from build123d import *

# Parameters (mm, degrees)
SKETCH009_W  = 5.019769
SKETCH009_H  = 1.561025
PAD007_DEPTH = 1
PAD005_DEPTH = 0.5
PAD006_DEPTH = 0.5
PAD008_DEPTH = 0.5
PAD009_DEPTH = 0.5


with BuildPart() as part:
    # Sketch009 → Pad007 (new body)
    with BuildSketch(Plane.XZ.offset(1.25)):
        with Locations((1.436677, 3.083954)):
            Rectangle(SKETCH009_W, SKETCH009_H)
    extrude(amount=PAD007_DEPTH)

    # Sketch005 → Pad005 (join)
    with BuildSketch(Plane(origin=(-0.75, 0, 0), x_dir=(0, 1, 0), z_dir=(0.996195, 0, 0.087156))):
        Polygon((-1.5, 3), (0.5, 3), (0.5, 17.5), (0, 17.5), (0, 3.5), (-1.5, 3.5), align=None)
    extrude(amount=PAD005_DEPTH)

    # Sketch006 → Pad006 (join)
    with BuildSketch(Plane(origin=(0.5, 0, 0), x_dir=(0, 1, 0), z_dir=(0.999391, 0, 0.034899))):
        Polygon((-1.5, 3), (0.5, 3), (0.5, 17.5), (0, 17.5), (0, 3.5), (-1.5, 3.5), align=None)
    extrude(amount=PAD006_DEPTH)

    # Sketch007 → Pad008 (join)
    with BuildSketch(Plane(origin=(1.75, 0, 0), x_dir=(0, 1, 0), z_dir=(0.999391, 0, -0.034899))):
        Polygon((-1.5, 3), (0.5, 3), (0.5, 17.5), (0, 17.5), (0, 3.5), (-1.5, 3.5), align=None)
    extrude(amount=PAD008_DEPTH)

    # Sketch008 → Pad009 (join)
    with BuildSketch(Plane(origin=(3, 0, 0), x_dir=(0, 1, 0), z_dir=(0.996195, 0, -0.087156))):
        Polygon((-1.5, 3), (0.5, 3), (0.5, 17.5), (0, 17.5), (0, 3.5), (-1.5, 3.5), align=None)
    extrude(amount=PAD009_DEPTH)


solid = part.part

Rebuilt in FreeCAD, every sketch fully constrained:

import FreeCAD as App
import Part
import Sketcher

V = App.Vector


def add_polygon(sketch, points):
    """Adds a closed chain of lines whose ends are joined by coincident constraints."""
    first, n = sketch.GeometryCount, len(points)
    for a, b in zip(points, points[1:] + points[:1]):
        sketch.addGeometry(Part.LineSegment(App.Vector(*a, 0), App.Vector(*b, 0)), False)
    for i in range(n):
        sketch.addConstraint(Sketcher.Constraint("Coincident", first + i, 2, first + (i + 1) % n, 1))

doc = App.newDocument("Part")
body = doc.addObject("PartDesign::Body", "Body")

# Sketch on XZ plane
sketch1 = body.newObject("Sketcher::SketchObject", "Sketch")
sketch1.AttachmentSupport = (doc.getObject("XZ_Plane"), [""])
sketch1.MapMode = "FlatFace"
sketch1.AttachmentOffset = App.Placement(V(0, 0, 1.25), App.Rotation())
add_polygon(sketch1, [(-1.1, 3.9), (-1.1, 2.3), (3.9, 2.3), (3.9, 3.9)])  # lines 0-3
sketch1.addConstraint([
    Sketcher.Constraint("Vertical", 0),
    Sketcher.Constraint("Horizontal", 1),
    Sketcher.Constraint("Vertical", 2),
    Sketcher.Constraint("Horizontal", 3),
    Sketcher.Constraint("DistanceX", 1, 1, 1, 2, 5.019769),
    Sketcher.Constraint("DistanceY", 0, 2, 0, 1, 1.561025),
    Sketcher.Constraint("DistanceY", -1, 1, 0, 2, 2.303441),
    Sketcher.Constraint("DistanceX", -1, 1, 1, 2, 3.946562),
])
pad1 = body.newObject("PartDesign::Pad", "Pad")
pad1.Profile = sketch1
pad1.Length = 1

# Sketch on an angled plane
sketch2 = body.newObject("Sketcher::SketchObject", "Sketch001")
sketch2.Placement = App.Placement(V(-0.75, 0, 0), App.Rotation(V(0, 1, 0), V(-0.087155972, 0, 0.996194678), V(0.996194678, 0, 0.087155972), "ZXY"))
add_polygon(sketch2, [(-1.5, 3), (0.5, 3), (0.5, 17.5), (0, 17.5), (0, 3.5), (-1.5, 3.5)])  # lines 0-5
sketch2.addConstraint([
    Sketcher.Constraint("Horizontal", 0),
    Sketcher.Constraint("Vertical", 1),
    Sketcher.Constraint("Horizontal", 2),
    Sketcher.Constraint("Vertical", 3),
    Sketcher.Constraint("Horizontal", 4),
    Sketcher.Constraint("Vertical", 5),
    Sketcher.Constraint("PointOnObject", 2, 2, -2),
    Sketcher.Constraint("Equal", 2, 5),
    Sketcher.Constraint("DistanceX", 0, 1, 0, 2, 2.0),
    Sketcher.Constraint("DistanceY", 3, 2, 3, 1, 14.0),
    Sketcher.Constraint("DistanceX", 2, 2, 2, 1, 0.5),
    Sketcher.Constraint("DistanceY", -1, 1, 0, 2, 3.0),
])
pad2 = body.newObject("PartDesign::Pad", "Pad001")
pad2.Profile = sketch2
pad2.Length = 0.5

# Sketch on an angled plane
sketch3 = body.newObject("Sketcher::SketchObject", "Sketch002")
sketch3.Placement = App.Placement(V(0.5, 0, 0), App.Rotation(V(0, 1, 0), V(-0.034898995, 0, 0.999390845), V(0.999390845, 0, 0.034898995), "ZXY"))
add_polygon(sketch3, [(-1.5, 3), (0.5, 3), (0.5, 17.5), (0, 17.5), (0, 3.5), (-1.5, 3.5)])  # lines 0-5
sketch3.addConstraint([
    Sketcher.Constraint("Horizontal", 0),
    Sketcher.Constraint("Vertical", 1),
    Sketcher.Constraint("Horizontal", 2),
    Sketcher.Constraint("Vertical", 3),
    Sketcher.Constraint("Horizontal", 4),
    Sketcher.Constraint("Vertical", 5),
    Sketcher.Constraint("PointOnObject", 2, 2, -2),
    Sketcher.Constraint("Equal", 2, 5),
    Sketcher.Constraint("DistanceX", 0, 1, 0, 2, 2.0),
    Sketcher.Constraint("DistanceY", 3, 2, 3, 1, 14.0),
    Sketcher.Constraint("DistanceX", 2, 2, 2, 1, 0.5),
    Sketcher.Constraint("DistanceY", -1, 1, 0, 2, 3.0),
])
pad3 = body.newObject("PartDesign::Pad", "Pad002")
pad3.Profile = sketch3
pad3.Length = 0.5

# Sketch on an angled plane
sketch4 = body.newObject("Sketcher::SketchObject", "Sketch003")
sketch4.Placement = App.Placement(V(1.75, 0, 0), App.Rotation(V(0, 1, 0), V(0.034898995, 0, 0.999390845), V(0.999390845, 0, -0.034898995), "ZXY"))
add_polygon(sketch4, [(-1.5, 3), (0.5, 3), (0.5, 17.5), (0, 17.5), (0, 3.5), (-1.5, 3.5)])  # lines 0-5
sketch4.addConstraint([
    Sketcher.Constraint("Horizontal", 0),
    Sketcher.Constraint("Vertical", 1),
    Sketcher.Constraint("Horizontal", 2),
    Sketcher.Constraint("Vertical", 3),
    Sketcher.Constraint("Horizontal", 4),
    Sketcher.Constraint("Vertical", 5),
    Sketcher.Constraint("PointOnObject", 2, 2, -2),
    Sketcher.Constraint("Equal", 2, 5),
    Sketcher.Constraint("DistanceX", 0, 1, 0, 2, 2.0),
    Sketcher.Constraint("DistanceY", 3, 2, 3, 1, 14.0),
    Sketcher.Constraint("DistanceX", 2, 2, 2, 1, 0.5),
    Sketcher.Constraint("DistanceY", -1, 1, 0, 2, 3.0),
])
pad4 = body.newObject("PartDesign::Pad", "Pad003")
pad4.Profile = sketch4
pad4.Length = 0.5

# Sketch on an angled plane
sketch5 = body.newObject("Sketcher::SketchObject", "Sketch004")
sketch5.Placement = App.Placement(V(3, 0, 0), App.Rotation(V(0, 1, 0), V(0.087155972, 0, 0.996194678), V(0.996194678, 0, -0.087155972), "ZXY"))
add_polygon(sketch5, [(-1.5, 3), (0.5, 3), (0.5, 17.5), (0, 17.5), (0, 3.5), (-1.5, 3.5)])  # lines 0-5
sketch5.addConstraint([
    Sketcher.Constraint("Horizontal", 0),
    Sketcher.Constraint("Vertical", 1),
    Sketcher.Constraint("Horizontal", 2),
    Sketcher.Constraint("Vertical", 3),
    Sketcher.Constraint("Horizontal", 4),
    Sketcher.Constraint("Vertical", 5),
    Sketcher.Constraint("PointOnObject", 2, 2, -2),
    Sketcher.Constraint("Equal", 2, 5),
    Sketcher.Constraint("DistanceX", 0, 1, 0, 2, 2.0),
    Sketcher.Constraint("DistanceY", 3, 2, 3, 1, 14.0),
    Sketcher.Constraint("DistanceX", 2, 2, 2, 1, 0.5),
    Sketcher.Constraint("DistanceY", -1, 1, 0, 2, 3.0),
])
pad5 = body.newObject("PartDesign::Pad", "Pad004")
pad5.Profile = sketch5
pad5.Length = 0.5

doc.recompute()
